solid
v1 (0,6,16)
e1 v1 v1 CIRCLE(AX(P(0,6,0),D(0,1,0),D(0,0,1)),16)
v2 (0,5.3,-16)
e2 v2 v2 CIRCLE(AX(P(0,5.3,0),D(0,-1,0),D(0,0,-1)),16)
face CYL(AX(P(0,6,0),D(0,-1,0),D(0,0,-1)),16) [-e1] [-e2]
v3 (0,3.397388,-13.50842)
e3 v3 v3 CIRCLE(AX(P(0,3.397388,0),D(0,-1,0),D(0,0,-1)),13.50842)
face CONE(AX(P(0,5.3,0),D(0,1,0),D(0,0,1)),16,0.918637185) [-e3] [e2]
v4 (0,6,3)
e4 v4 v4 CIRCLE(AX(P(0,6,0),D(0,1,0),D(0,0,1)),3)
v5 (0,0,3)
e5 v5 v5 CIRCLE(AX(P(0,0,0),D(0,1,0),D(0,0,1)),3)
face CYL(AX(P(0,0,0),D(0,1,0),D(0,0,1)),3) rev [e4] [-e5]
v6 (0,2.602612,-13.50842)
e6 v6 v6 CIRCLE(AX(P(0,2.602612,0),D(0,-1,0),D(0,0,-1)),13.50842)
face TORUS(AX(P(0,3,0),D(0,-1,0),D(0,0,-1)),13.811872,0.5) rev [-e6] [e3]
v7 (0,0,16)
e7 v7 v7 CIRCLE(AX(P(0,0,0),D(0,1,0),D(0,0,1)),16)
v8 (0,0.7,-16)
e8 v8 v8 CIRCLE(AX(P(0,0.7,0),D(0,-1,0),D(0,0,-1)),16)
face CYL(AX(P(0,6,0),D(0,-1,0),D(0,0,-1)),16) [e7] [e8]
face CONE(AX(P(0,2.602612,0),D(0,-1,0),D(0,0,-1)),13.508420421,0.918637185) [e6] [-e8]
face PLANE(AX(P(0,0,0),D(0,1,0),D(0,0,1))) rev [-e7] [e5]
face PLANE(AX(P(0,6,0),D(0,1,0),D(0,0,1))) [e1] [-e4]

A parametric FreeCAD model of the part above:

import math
import FreeCAD as App
import Part
import Sketcher

doc = App.newDocument("Part")
body = doc.addObject("PartDesign::Body", "Body")

# Sketch on XZ plane
sketch1 = doc.addObject("Sketcher::SketchObject", "Sketch")
body.addObject(sketch1)
sketch1.AttachmentSupport = (doc.XZ_Plane, [""])
sketch1.MapMode = "FlatFace"
sketch1.addGeometry(Part.Circle(App.Vector(0, 0, 0), App.Vector(0, 0, 1), 16), False)
sketch1.addConstraint(Sketcher.Constraint("Coincident", 0, 3, -1, 1))
sketch1.addConstraint(Sketcher.Constraint("Diameter", 0, 32.0))
pad1 = doc.addObject("PartDesign::Pad", "Pad")
body.addObject(pad1)
pad1.Profile = sketch1
pad1.Length = 6
pad1.Reversed = True

# Sketch on XY plane
sketch2 = doc.addObject("Sketcher::SketchObject", "Sketch001")
body.addObject(sketch2)
sketch2.AttachmentSupport = (doc.XY_Plane, [""])
sketch2.MapMode = "FlatFace"
sketch2.addGeometry(Part.LineSegment(App.Vector(13.50842, 2.602612, 0), App.Vector(16, 0.7, 0)), False)
sketch2.addGeometry(Part.LineSegment(App.Vector(16, 0.7, 0), App.Vector(16, 5.3, 0)), False)
sketch2.addGeometry(Part.LineSegment(App.Vector(16, 5.3, 0), App.Vector(13.50842, 3.397388, 0)), False)
sketch2.addGeometry(Part.ArcOfCircle(Part.Circle(App.Vector(13.811872, 3, 0), App.Vector(0, 0, 1), 0.5), math.radians(127.365966), math.radians(232.634034)), False)
sketch2.addConstraint(Sketcher.Constraint("Coincident", 0, 2, 1, 1))
sketch2.addConstraint(Sketcher.Constraint("Coincident", 1, 2, 2, 1))
sketch2.addConstraint(Sketcher.Constraint("Tangent", 2, 2, 3, 1))
sketch2.addConstraint(Sketcher.Constraint("Tangent", 3, 2, 0, 1))
sketch2.addConstraint(Sketcher.Constraint("Vertical", 1))
sketch2.addConstraint(Sketcher.Constraint("Vertical", 2, 2, 3, 2))
sketch2.addConstraint(Sketcher.Constraint("Radius", 3, 0.5))
sketch2.addConstraint(Sketcher.Constraint("DistanceY", 1, 1, 1, 2, 4.6))
sketch2.addConstraint(Sketcher.Constraint("DistanceY", -1, 1, 3, 3, 3.0))
sketch2.addConstraint(Sketcher.Constraint("DistanceX", -1, 1, 0, 2, 16.0))
sketch2.addConstraint(Sketcher.Constraint("Distance", 0, 3.134949))
groove = doc.addObject("PartDesign::Groove", "Groove")
body.addObject(groove)
groove.Profile = sketch2
groove.ReferenceAxis = (sketch2, ["V_Axis"])
groove.Angle = 360

# Sketch on XZ plane
sketch3 = doc.addObject("Sketcher::SketchObject", "Sketch002")
body.addObject(sketch3)
sketch3.AttachmentSupport = (doc.XZ_Plane, [""])
sketch3.MapMode = "FlatFace"
sketch3.AttachmentOffset = App.Placement(App.Vector(0, 0, -6), App.Rotation())
sketch3.addGeometry(Part.Circle(App.Vector(0, 0, 0), App.Vector(0, 0, 1), 3), False)
sketch3.addConstraint(Sketcher.Constraint("Coincident", 0, 3, -1, 1))
sketch3.addConstraint(Sketcher.Constraint("Diameter", 0, 6.0))
pocket1 = doc.addObject("PartDesign::Pocket", "Pocket")
body.addObject(pocket1)
pocket1.Profile = sketch3
pocket1.Type = "ThroughAll"
pocket1.Reversed = True

doc.recompute()
